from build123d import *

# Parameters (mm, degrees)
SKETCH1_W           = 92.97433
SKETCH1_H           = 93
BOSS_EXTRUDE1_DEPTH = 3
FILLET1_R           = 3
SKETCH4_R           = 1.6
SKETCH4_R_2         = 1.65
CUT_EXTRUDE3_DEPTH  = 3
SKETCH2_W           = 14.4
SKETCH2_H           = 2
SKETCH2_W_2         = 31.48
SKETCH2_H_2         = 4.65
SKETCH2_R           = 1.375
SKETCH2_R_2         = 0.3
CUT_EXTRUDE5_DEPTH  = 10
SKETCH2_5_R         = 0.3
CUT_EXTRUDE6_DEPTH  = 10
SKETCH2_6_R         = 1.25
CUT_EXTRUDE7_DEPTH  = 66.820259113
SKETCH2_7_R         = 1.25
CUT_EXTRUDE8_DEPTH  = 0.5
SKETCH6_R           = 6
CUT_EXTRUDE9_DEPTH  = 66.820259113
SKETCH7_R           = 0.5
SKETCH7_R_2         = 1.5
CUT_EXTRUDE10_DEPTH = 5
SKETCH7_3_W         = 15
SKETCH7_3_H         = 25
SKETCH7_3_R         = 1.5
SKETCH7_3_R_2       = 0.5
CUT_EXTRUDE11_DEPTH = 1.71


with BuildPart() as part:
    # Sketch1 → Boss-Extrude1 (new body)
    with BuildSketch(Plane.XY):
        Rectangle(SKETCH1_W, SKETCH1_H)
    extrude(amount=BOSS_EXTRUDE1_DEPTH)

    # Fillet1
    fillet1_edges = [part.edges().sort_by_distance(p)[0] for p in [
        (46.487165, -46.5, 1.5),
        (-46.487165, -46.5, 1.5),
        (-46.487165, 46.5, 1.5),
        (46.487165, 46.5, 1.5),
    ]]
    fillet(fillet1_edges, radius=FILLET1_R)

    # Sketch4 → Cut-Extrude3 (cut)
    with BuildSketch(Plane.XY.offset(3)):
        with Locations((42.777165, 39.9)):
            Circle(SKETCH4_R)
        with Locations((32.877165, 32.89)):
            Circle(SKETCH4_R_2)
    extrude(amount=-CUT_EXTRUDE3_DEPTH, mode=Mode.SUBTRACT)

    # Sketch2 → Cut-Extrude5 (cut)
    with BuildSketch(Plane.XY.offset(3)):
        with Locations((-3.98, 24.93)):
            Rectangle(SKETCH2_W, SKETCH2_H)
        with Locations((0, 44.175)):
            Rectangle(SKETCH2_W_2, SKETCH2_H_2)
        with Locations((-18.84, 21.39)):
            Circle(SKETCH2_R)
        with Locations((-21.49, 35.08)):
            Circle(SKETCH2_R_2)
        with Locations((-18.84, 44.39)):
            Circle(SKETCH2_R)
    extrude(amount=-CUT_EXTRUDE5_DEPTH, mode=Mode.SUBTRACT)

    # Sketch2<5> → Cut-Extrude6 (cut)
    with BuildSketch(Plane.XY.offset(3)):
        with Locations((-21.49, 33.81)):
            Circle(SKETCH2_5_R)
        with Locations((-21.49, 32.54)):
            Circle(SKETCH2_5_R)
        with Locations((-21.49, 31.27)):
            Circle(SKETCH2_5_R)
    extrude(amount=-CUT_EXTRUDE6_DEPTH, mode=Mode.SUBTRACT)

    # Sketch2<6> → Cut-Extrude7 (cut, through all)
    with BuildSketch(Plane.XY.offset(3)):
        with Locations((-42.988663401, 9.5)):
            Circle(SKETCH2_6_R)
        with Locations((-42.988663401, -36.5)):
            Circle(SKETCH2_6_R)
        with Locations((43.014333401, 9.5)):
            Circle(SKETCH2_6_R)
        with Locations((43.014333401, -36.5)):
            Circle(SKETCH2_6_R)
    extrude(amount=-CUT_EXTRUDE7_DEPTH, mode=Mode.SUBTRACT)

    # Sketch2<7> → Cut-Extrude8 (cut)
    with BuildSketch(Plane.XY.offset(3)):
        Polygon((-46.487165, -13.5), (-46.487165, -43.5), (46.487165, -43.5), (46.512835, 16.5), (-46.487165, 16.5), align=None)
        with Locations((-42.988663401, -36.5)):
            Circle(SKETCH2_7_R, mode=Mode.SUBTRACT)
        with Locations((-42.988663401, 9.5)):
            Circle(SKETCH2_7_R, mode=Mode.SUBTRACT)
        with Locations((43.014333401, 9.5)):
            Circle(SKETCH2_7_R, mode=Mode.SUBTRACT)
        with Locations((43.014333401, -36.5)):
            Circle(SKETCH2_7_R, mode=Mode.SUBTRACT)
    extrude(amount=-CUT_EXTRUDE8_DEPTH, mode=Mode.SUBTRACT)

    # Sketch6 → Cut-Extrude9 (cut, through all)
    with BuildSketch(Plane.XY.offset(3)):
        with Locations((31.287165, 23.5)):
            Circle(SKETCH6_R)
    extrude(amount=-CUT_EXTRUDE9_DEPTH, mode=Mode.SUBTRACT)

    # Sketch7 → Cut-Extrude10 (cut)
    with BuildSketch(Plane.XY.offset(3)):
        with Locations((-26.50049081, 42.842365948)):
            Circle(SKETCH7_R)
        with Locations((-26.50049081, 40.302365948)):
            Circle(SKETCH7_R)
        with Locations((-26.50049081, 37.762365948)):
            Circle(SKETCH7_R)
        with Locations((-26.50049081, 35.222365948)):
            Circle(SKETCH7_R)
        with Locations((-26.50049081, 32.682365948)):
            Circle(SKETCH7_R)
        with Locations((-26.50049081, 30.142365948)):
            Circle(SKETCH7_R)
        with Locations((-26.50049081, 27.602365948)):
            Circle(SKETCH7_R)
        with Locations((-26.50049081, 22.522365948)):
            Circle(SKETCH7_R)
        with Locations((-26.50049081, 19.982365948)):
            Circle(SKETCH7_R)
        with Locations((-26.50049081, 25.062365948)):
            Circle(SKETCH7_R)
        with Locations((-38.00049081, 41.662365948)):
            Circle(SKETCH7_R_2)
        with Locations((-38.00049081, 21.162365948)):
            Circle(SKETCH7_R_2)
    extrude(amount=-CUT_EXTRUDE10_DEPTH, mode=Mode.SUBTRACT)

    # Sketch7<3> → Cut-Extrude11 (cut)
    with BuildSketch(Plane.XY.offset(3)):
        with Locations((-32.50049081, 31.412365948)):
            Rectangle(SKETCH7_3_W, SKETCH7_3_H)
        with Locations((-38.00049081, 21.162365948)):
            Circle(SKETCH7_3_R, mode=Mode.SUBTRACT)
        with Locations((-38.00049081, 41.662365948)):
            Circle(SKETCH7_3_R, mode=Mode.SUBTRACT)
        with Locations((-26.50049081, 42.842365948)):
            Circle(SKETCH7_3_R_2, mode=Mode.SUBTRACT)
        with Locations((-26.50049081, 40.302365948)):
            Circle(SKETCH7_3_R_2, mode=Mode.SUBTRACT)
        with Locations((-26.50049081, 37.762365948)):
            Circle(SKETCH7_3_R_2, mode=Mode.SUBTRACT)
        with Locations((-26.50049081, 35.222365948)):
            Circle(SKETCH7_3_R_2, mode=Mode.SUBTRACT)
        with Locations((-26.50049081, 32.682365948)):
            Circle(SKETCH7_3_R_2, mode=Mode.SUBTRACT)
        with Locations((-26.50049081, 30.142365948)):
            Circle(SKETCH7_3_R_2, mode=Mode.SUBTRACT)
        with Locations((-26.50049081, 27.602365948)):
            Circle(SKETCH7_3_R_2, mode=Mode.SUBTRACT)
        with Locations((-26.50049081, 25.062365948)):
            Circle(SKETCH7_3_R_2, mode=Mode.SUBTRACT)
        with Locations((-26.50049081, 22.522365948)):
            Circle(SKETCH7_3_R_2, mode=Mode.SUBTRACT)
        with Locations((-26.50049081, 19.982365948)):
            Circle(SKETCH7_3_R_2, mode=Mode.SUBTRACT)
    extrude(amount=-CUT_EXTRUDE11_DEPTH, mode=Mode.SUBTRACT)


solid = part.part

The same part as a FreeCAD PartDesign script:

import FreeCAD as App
import Part
import Sketcher


def edges_at(feature, points):
    """Names of the edges that pass closest to the given points."""
    edges = feature.Shape.Edges
    near = lambda p: min(range(len(edges)), key=lambda i: edges[i].distToShape(Part.Vertex(*p))[0])
    return sorted({f"Edge{near(p) + 1}" for p in points})


def add_polygon(sketch, points):
    """Adds a closed chain of lines whose ends are joined by coincident constraints."""
    first, n = sketch.GeometryCount, len(points)
    for a, b in zip(points, points[1:] + points[:1]):
        sketch.addGeometry(Part.LineSegment(App.Vector(*a, 0), App.Vector(*b, 0)), False)
    for i in range(n):
        sketch.addConstraint(Sketcher.Constraint("Coincident", first + i, 2, first + (i + 1) % n, 1))

doc = App.newDocument("Part")
params = doc.addObject("Spreadsheet::Sheet", "Params")
for row, (alias, value) in enumerate([
    ("sketch1_height", "93 mm"),
    ("pad1_length", "3 mm"),
    ("fillet_radius", "3 mm"),
    ("sketch2_diameter", "3.2 mm"),
    ("sketch2_diameter2", "3.3 mm"),
    ("pocket1_length", "3 mm"),
    ("sketch3_diameter", "0.6 mm"),
    ("sketch3_diameter2", "2.75 mm"),
    ("sketch3_height", "2 mm"),
    ("sketch3_width", "14.4 mm"),
    ("sketch3_width2", "31.48 mm"),
    ("pocket2_length", "10 mm"),
    ("sketch4_diameter", "0.6 mm"),
    ("pocket3_length", "10 mm"),
    ("sketch5_diameter", "2.5 mm"),
    ("sketch6_diameter", "2.5 mm"),
    ("sketch6_width", "93 mm"),
    ("sketch6_height", "60 mm"),
    ("pocket5_length", "0.5 mm"),
    ("sketch7_diameter", "12 mm"),
    ("sketch8_diameter", "1 mm"),
    ("sketch8_diameter2", "3 mm"),
    ("pocket7_length", "5 mm"),
    ("sketch9_diameter", "3 mm"),
    ("sketch9_diameter2", "1 mm"),
    ("sketch9_width", "15 mm"),
    ("sketch9_height", "25 mm"),
    ("pocket8_length", "1.71 mm"),
], start=1):
    params.set(f"A{row}", alias)
    params.set(f"B{row}", "=" + value)
    params.setAlias(f"B{row}", alias)

body = doc.addObject("PartDesign::Body", "Body")

sketch1 = body.newObject("Sketcher::SketchObject", "Sketch")
sketch1.AttachmentSupport = (doc.getObject("XY_Plane"), [""])
sketch1.MapMode = "FlatFace"
add_polygon(sketch1, [(-46.487165, 46.5), (-46.487165, -46.5), (46.487165, -46.5), (46.487165, 46.5)])
sketch1.addConstraint([
    Sketcher.Constraint("Vertical", 0),
    Sketcher.Constraint("Horizontal", 1),
    Sketcher.Constraint("Vertical", 2),
    Sketcher.Constraint("Horizontal", 3),
    Sketcher.Constraint("Symmetric", 0, 2, 2, 2, -1, 1),
    Sketcher.Constraint("DistanceY", 0, 2, 0, 1, 93.0),
    Sketcher.Constraint("DistanceX", 1, 1, 1, 2, 92.97433),
])
sketch1.setExpression("Constraints[9]", "Params.sketch1_height")
pad1 = body.newObject("PartDesign::Pad", "Pad")
pad1.Profile = sketch1
pad1.setExpression("Length", "Params.pad1_length")
doc.recompute()

fillet = body.newObject("PartDesign::Fillet", "Fillet")
fillet.Base = (pad1, edges_at(pad1, [
    (46.487, -46.5, 1.5),
    (-46.487, -46.5, 1.5),
    (-46.487, 46.5, 1.5),
    (46.487, 46.5, 1.5),
]))
fillet.setExpression("Radius", "Params.fillet_radius")

sketch2 = body.newObject("Sketcher::SketchObject", "Sketch001")
sketch2.AttachmentSupport = (doc.getObject("XY_Plane"), [""])
sketch2.MapMode = "FlatFace"
sketch2.AttachmentOffset = App.Placement(App.Vector(0, 0, 3), App.Rotation())
sketch2.addGeometry([
    Part.Circle(App.Vector(42.777165, 39.9, 0), App.Vector(0, 0, 1), 1.6),
    Part.Circle(App.Vector(32.877165, 32.89, 0), App.Vector(0, 0, 1), 1.65),
], False)
sketch2.addConstraint([
    Sketcher.Constraint("Diameter", 0, 3.2),
    Sketcher.Constraint("Diameter", 1, 3.3),
    Sketcher.Constraint("DistanceY", -1, 1, 0, 3, 39.9),
    Sketcher.Constraint("DistanceX", 1, 3, 0, 3, 9.9),
    Sketcher.Constraint("DistanceY", -1, 1, 1, 3, 32.89),
    Sketcher.Constraint("DistanceX", -1, 1, 0, 3, 42.777165),
])
sketch2.setExpression("Constraints[0]", "Params.sketch2_diameter")
sketch2.setExpression("Constraints[1]", "Params.sketch2_diameter2")
pocket1 = body.newObject("PartDesign::Pocket", "Pocket")
pocket1.Profile = sketch2
pocket1.setExpression("Length", "Params.pocket1_length")

sketch3 = body.newObject("Sketcher::SketchObject", "Sketch002")
sketch3.AttachmentSupport = (doc.getObject("XY_Plane"), [""])
sketch3.MapMode = "FlatFace"
sketch3.AttachmentOffset = App.Placement(App.Vector(0, 0, 3), App.Rotation())
add_polygon(sketch3, [(-11.18, 25.93), (-11.18, 23.93), (3.22, 23.93), (3.22, 25.93)])
add_polygon(sketch3, [(-15.74, 46.5), (-15.74, 41.85), (15.74, 41.85), (15.74, 46.5)])
sketch3.addGeometry(Part.Circle(App.Vector(-18.84, 21.39, 0), App.Vector(0, 0, 1), 1.375), False)
sketch3.addGeometry(Part.Circle(App.Vector(-21.49, 35.08, 0), App.Vector(0, 0, 1), 0.3), False)
sketch3.addGeometry(Part.Circle(App.Vector(-18.84, 44.39, 0), App.Vector(0, 0, 1), 1.375), False)
sketch3.addConstraint([
    Sketcher.Constraint("Vertical", 0),
    Sketcher.Constraint("Horizontal", 1),
    Sketcher.Constraint("Vertical", 2),
    Sketcher.Constraint("Horizontal", 3),
    Sketcher.Constraint("Vertical", 4),
    Sketcher.Constraint("Horizontal", 5),
    Sketcher.Constraint("Vertical", 6),
    Sketcher.Constraint("Horizontal", 7),
    Sketcher.Constraint("Equal", 8, 10),
    Sketcher.Constraint("Vertical", 8, 3, 10, 3),
    Sketcher.Constraint("Diameter", 9, 0.6),
    Sketcher.Constraint("Diameter", 8, 2.75),
    Sketcher.Constraint("DistanceY", 0, 2, 0, 1, 2.0),
    Sketcher.Constraint("DistanceX", 1, 1, 1, 2, 14.4),
    Sketcher.Constraint("DistanceY", 8, 3, 10, 3, 23.0),
    Sketcher.Constraint("DistanceX", 5, 1, 5, 2, 31.48),
    Sketcher.Constraint("DistanceY", 4, 2, 4, 1, 4.65),
    Sketcher.Constraint("DistanceY", -1, 1, 6, 2, 46.5),
    Sketcher.Constraint("DistanceX", 10, 3, 4, 2, 3.1),
    Sketcher.Constraint("DistanceX", 8, 3, -1, 1, 18.84),
    Sketcher.Constraint("DistanceY", -1, 1, 8, 3, 21.39),
    Sketcher.Constraint("DistanceX", 9, 3, -1, 1, 21.49),
    Sketcher.Constraint("DistanceY", -1, 1, 9, 3, 35.08),
    Sketcher.Constraint("DistanceX", 0, 2, -1, 1, 11.18),
    Sketcher.Constraint("DistanceY", -1, 1, 0, 2, 23.93),
])
sketch3.setExpression("Constraints[18]", "Params.sketch3_diameter")
sketch3.setExpression("Constraints[19]", "Params.sketch3_diameter2")
sketch3.setExpression("Constraints[20]", "Params.sketch3_height")
sketch3.setExpression("Constraints[21]", "Params.sketch3_width")
sketch3.setExpression("Constraints[23]", "Params.sketch3_width2")
pocket2 = body.newObject("PartDesign::Pocket", "Pocket001")
pocket2.Profile = sketch3
pocket2.setExpression("Length", "Params.pocket2_length")

sketch4 = body.newObject("Sketcher::SketchObject", "Sketch003")
sketch4.AttachmentSupport = (doc.getObject("XY_Plane"), [""])
sketch4.MapMode = "FlatFace"
sketch4.AttachmentOffset = App.Placement(App.Vector(0, 0, 3), App.Rotation())
sketch4.addGeometry([
    Part.Circle(App.Vector(-21.49, 33.81, 0), App.Vector(0, 0, 1), 0.3),
    Part.Circle(App.Vector(-21.49, 32.54, 0), App.Vector(0, 0, 1), 0.3),
    Part.Circle(App.Vector(-21.49, 31.27, 0), App.Vector(0, 0, 1), 0.3),
], False)
sketch4.addConstraint([
    Sketcher.Constraint("Equal", 0, 1),
    Sketcher.Constraint("Equal", 1, 2),
    Sketcher.Constraint("Vertical", 0, 3, 1, 3),
    Sketcher.Constraint("Vertical", 1, 3, 2, 3),
    Sketcher.Constraint("Diameter", 0, 0.6),
    Sketcher.Constraint("DistanceX", 0, 3, -1, 1, 21.49),
    Sketcher.Constraint("DistanceY", -1, 1, 0, 3, 33.81),
    Sketcher.Constraint("DistanceY", -1, 1, 1, 3, 32.54),
    Sketcher.Constraint("DistanceY", -1, 1, 2, 3, 31.27),
])
sketch4.setExpression("Constraints[4]", "Params.sketch4_diameter")
pocket3 = body.newObject("PartDesign::Pocket", "Pocket002")
pocket3.Profile = sketch4
pocket3.setExpression("Length", "Params.pocket3_length")

sketch5 = body.newObject("Sketcher::SketchObject", "Sketch004")
sketch5.AttachmentSupport = (doc.getObject("XY_Plane"), [""])
sketch5.MapMode = "FlatFace"
sketch5.AttachmentOffset = App.Placement(App.Vector(0, 0, 3), App.Rotation())
sketch5.addGeometry([
    Part.Circle(App.Vector(-42.988663, 9.5, 0), App.Vector(0, 0, 1), 1.25),
    Part.Circle(App.Vector(-42.988663, -36.5, 0), App.Vector(0, 0, 1), 1.25),
    Part.Circle(App.Vector(43.014333, 9.5, 0), App.Vector(0, 0, 1), 1.25),
    Part.Circle(App.Vector(43.014333, -36.5, 0), App.Vector(0, 0, 1), 1.25),
], False)
sketch5.addConstraint([
    Sketcher.Constraint("Equal", 0, 1),
    Sketcher.Constraint("Equal", 1, 2),
    Sketcher.Constraint("Equal", 2, 3),
    Sketcher.Constraint("Horizontal", 0, 3, 2, 3),
    Sketcher.Constraint("Horizontal", 1, 3, 3, 3),
    Sketcher.Constraint("Vertical", 0, 3, 1, 3),
    Sketcher.Constraint("Vertical", 2, 3, 3, 3),
    Sketcher.Constraint("Diameter", 0, 2.5),
    Sketcher.Constraint("DistanceY", 1, 3, 0, 3, 46.0),
    Sketcher.Constraint("DistanceY", -1, 1, 0, 3, 9.5),
    Sketcher.Constraint("DistanceX", 0, 3, -1, 1, 42.988663),
    Sketcher.Constraint("DistanceX", -1, 1, 2, 3, 43.014333),
])
sketch5.setExpression("Constraints[7]", "Params.sketch5_diameter")
pocket4 = body.newObject("PartDesign::Pocket", "Pocket003")
pocket4.Profile = sketch5
pocket4.Type = "ThroughAll"

sketch6 = body.newObject("Sketcher::SketchObject", "Sketch005")
sketch6.AttachmentSupport = (doc.getObject("XY_Plane"), [""])
sketch6.MapMode = "FlatFace"
sketch6.AttachmentOffset = App.Placement(App.Vector(0, 0, 3), App.Rotation())
add_polygon(sketch6, [(-46.487165, -43.5), (46.487165, -43.5), (46.512835, 16.5), (-46.487165, 16.5)])
sketch6.addGeometry(Part.Circle(App.Vector(-42.988663, -36.5, 0), App.Vector(0, 0, 1), 1.25), False)
sketch6.addGeometry(Part.Circle(App.Vector(43.014333, -36.5, 0), App.Vector(0, 0, 1), 1.25), False)
sketch6.addGeometry(Part.Circle(App.Vector(-42.988663, 9.5, 0), App.Vector(0, 0, 1), 1.25), False)
sketch6.addGeometry(Part.Circle(App.Vector(43.014333, 9.5, 0), App.Vector(0, 0, 1), 1.25), False)
sketch6.addConstraint([
    Sketcher.Constraint("Horizontal", 0),
    Sketcher.Constraint("Horizontal", 2),
    Sketcher.Constraint("Vertical", 3),
    Sketcher.Constraint("Equal", 4, 5),
    Sketcher.Constraint("Equal", 5, 6),
    Sketcher.Constraint("Equal", 6, 7),
    Sketcher.Constraint("Horizontal", 4, 3, 5, 3),
    Sketcher.Constraint("Horizontal", 6, 3, 7, 3),
    Sketcher.Constraint("Vertical", 4, 3, 6, 3),
    Sketcher.Constraint("Vertical", 5, 3, 7, 3),
    Sketcher.Constraint("Diameter", 4, 2.5),
    Sketcher.Constraint("DistanceX", 2, 2, 2, 1, 93.0),
    Sketcher.Constraint("DistanceY", 3, 2, 3, 1, 60.0),
    Sketcher.Constraint("DistanceY", 4, 3, 6, 3, 46.0),
    Sketcher.Constraint("DistanceY", 0, 2, 5, 3, 7.0),
    Sketcher.Constraint("DistanceY", 4, 3, -1, 1, 36.5),
    Sketcher.Constraint("DistanceX", 0, 1, 0, 2, 92.97433),
    Sketcher.Constraint("DistanceX", 7, 3, 1, 2, 3.498502),
    Sketcher.Constraint("DistanceX", 6, 3, 1, 2, 89.501498),
    Sketcher.Constraint("DistanceX", 4, 3, -1, 1, 42.988663),
])
sketch6.setExpression("Constraints[14]", "Params.sketch6_diameter")
sketch6.setExpression("Constraints[15]", "Params.sketch6_width")
sketch6.setExpression("Constraints[16]", "Params.sketch6_height")
pocket5 = body.newObject("PartDesign::Pocket", "Pocket004")
pocket5.Profile = sketch6
pocket5.setExpression("Length", "Params.pocket5_length")

sketch7 = body.newObject("Sketcher::SketchObject", "Sketch006")
sketch7.AttachmentSupport = (doc.getObject("XY_Plane"), [""])
sketch7.MapMode = "FlatFace"
sketch7.AttachmentOffset = App.Placement(App.Vector(0, 0, 3), App.Rotation())
sketch7.addGeometry(Part.Circle(App.Vector(31.287165, 23.5, 0), App.Vector(0, 0, 1), 6), False)
sketch7.addConstraint([
    Sketcher.Constraint("Diameter", 0, 12.0),
    Sketcher.Constraint("DistanceY", -1, 1, 0, 3, 23.5),
    Sketcher.Constraint("DistanceX", -1, 1, 0, 3, 31.287165),
])
sketch7.setExpression("Constraints[0]", "Params.sketch7_diameter")
pocket6 = body.newObject("PartDesign::Pocket", "Pocket005")
pocket6.Profile = sketch7
pocket6.Type = "ThroughAll"

sketch8 = body.newObject("Sketcher::SketchObject", "Sketch007")
sketch8.AttachmentSupport = (doc.getObject("XY_Plane"), [""])
sketch8.MapMode = "FlatFace"
sketch8.AttachmentOffset = App.Placement(App.Vector(0, 0, 3), App.Rotation())
sketch8.addGeometry([
    Part.Circle(App.Vector(-26.500491, 42.842366, 0), App.Vector(0, 0, 1), 0.5),
    Part.Circle(App.Vector(-26.500491, 40.302366, 0), App.Vector(0, 0, 1), 0.5),
    Part.Circle(App.Vector(-26.500491, 37.762366, 0), App.Vector(0, 0, 1), 0.5),
    Part.Circle(App.Vector(-26.500491, 35.222366, 0), App.Vector(0, 0, 1), 0.5),
    Part.Circle(App.Vector(-26.500491, 32.682366, 0), App.Vector(0, 0, 1), 0.5),
    Part.Circle(App.Vector(-26.500491, 30.142366, 0), App.Vector(0, 0, 1), 0.5),
    Part.Circle(App.Vector(-26.500491, 27.602366, 0), App.Vector(0, 0, 1), 0.5),
    Part.Circle(App.Vector(-26.500491, 22.522366, 0), App.Vector(0, 0, 1), 0.5),
    Part.Circle(App.Vector(-26.500491, 19.982366, 0), App.Vector(0, 0, 1), 0.5),
    Part.Circle(App.Vector(-26.500491, 25.062366, 0), App.Vector(0, 0, 1), 0.5),
    Part.Circle(App.Vector(-38.000491, 41.662366, 0), App.Vector(0, 0, 1), 1.5),
    Part.Circle(App.Vector(-38.000491, 21.162366, 0), App.Vector(0, 0, 1), 1.5),
], False)
sketch8.addConstraint([
    Sketcher.Constraint("Equal", 0, 1),
    Sketcher.Constraint("Equal", 1, 2),
    Sketcher.Constraint("Equal", 2, 3),
    Sketcher.Constraint("Equal", 3, 4),
    Sketcher.Constraint("Equal", 4, 5),
    Sketcher.Constraint("Equal", 5, 6),
    Sketcher.Constraint("Equal", 6, 7),
    Sketcher.Constraint("Equal", 7, 8),
    Sketcher.Constraint("Equal", 8, 9),
    Sketcher.Constraint("Equal", 10, 11),
    Sketcher.Constraint("Vertical", 0, 3, 1, 3),
    Sketcher.Constraint("Vertical", 1, 3, 2, 3),
    Sketcher.Constraint("Vertical", 2, 3, 3, 3),
    Sketcher.Constraint("Vertical", 3, 3, 4, 3),
    Sketcher.Constraint("Vertical", 4, 3, 5, 3),
    Sketcher.Constraint("Vertical", 5, 3, 6, 3),
    Sketcher.Constraint("Vertical", 6, 3, 7, 3),
    Sketcher.Constraint("Vertical", 7, 3, 8, 3),
    Sketcher.Constraint("Vertical", 8, 3, 9, 3),
    Sketcher.Constraint("Vertical", 10, 3, 11, 3),
    Sketcher.Constraint("Diameter", 0, 1.0),
    Sketcher.Constraint("Diameter", 10, 3.0),
    Sketcher.Constraint("DistanceY", 5, 3, 0, 3, 12.7),
    Sketcher.Constraint("DistanceY", 6, 3, 1, 3, 12.7),
    Sketcher.Constraint("DistanceY", 7, 3, 3, 3, 12.7),
    Sketcher.Constraint("DistanceY", 8, 3, 4, 3, 12.7),
    Sketcher.Constraint("DistanceX", 10, 3, 0, 3, 11.5),
    Sketcher.Constraint("DistanceY", 2, 3, 10, 3, 3.9),
    Sketcher.Constraint("DistanceY", 11, 3, 9, 3, 3.9),
    Sketcher.Constraint("DistanceY", 1, 3, 0, 3, 2.54),
    Sketcher.Constraint("DistanceY", 2, 3, 1, 3, 2.54),
    Sketcher.Constraint("DistanceY", 3, 3, 2, 3, 2.54),
    Sketcher.Constraint("DistanceY", 4, 3, 3, 3, 2.54),
    Sketcher.Constraint("DistanceY", 9, 3, 6, 3, 2.54),
    Sketcher.Constraint("DistanceX", 0, 3, -1, 1, 26.500491),
    Sketcher.Constraint("DistanceY", -1, 1, 0, 3, 42.842366),
])
sketch8.setExpression("Constraints[20]", "Params.sketch8_diameter")
sketch8.setExpression("Constraints[21]", "Params.sketch8_diameter2")
pocket7 = body.newObject("PartDesign::Pocket", "Pocket006")
pocket7.Profile = sketch8
pocket7.setExpression("Length", "Params.pocket7_length")

sketch9 = body.newObject("Sketcher::SketchObject", "Sketch008")
sketch9.AttachmentSupport = (doc.getObject("XY_Plane"), [""])
sketch9.MapMode = "FlatFace"
sketch9.AttachmentOffset = App.Placement(App.Vector(0, 0, 3), App.Rotation())
add_polygon(sketch9, [(-40.000491, 43.912366), (-40.000491, 18.912366), (-25.000491, 18.912366), (-25.000491, 43.912366)])
sketch9.addGeometry(Part.Circle(App.Vector(-38.000491, 21.162366, 0), App.Vector(0, 0, 1), 1.5), False)
sketch9.addGeometry(Part.Circle(App.Vector(-26.500491, 19.982366, 0), App.Vector(0, 0, 1), 0.5), False)
sketch9.addGeometry(Part.Circle(App.Vector(-26.500491, 22.522366, 0), App.Vector(0, 0, 1), 0.5), False)
sketch9.addGeometry(Part.Circle(App.Vector(-26.500491, 25.062366, 0), App.Vector(0, 0, 1), 0.5), False)
sketch9.addGeometry(Part.Circle(App.Vector(-26.500491, 27.602366, 0), App.Vector(0, 0, 1), 0.5), False)
sketch9.addGeometry(Part.Circle(App.Vector(-26.500491, 30.142366, 0), App.Vector(0, 0, 1), 0.5), False)
sketch9.addGeometry(Part.Circle(App.Vector(-38.000491, 41.662366, 0), App.Vector(0, 0, 1), 1.5), False)
sketch9.addGeometry(Part.Circle(App.Vector(-26.500491, 32.682366, 0), App.Vector(0, 0, 1), 0.5), False)
sketch9.addGeometry(Part.Circle(App.Vector(-26.500491, 35.222366, 0), App.Vector(0, 0, 1), 0.5), False)
sketch9.addGeometry(Part.Circle(App.Vector(-26.500491, 37.762366, 0), App.Vector(0, 0, 1), 0.5), False)
sketch9.addGeometry(Part.Circle(App.Vector(-26.500491, 40.302366, 0), App.Vector(0, 0, 1), 0.5), False)
sketch9.addGeometry(Part.Circle(App.Vector(-26.500491, 42.842366, 0), App.Vector(0, 0, 1), 0.5), False)
sketch9.addConstraint([
    Sketcher.Constraint("Vertical", 0),
    Sketcher.Constraint("Horizontal", 1),
    Sketcher.Constraint("Vertical", 2),
    Sketcher.Constraint("Horizontal", 3),
    Sketcher.Constraint("Equal", 5, 6),
    Sketcher.Constraint("Equal", 6, 7),
    Sketcher.Constraint("Equal", 7, 8),
    Sketcher.Constraint("Equal", 8, 9),
    Sketcher.Constraint("Equal", 4, 10),
    Sketcher.Constraint("Equal", 9, 11),
    Sketcher.Constraint("Equal", 11, 12),
    Sketcher.Constraint("Equal", 12, 13),
    Sketcher.Constraint("Equal", 13, 14),
    Sketcher.Constraint("Equal", 14, 15),
    Sketcher.Constraint("Vertical", 5, 3, 6, 3),
    Sketcher.Constraint("Vertical", 6, 3, 7, 3),
    Sketcher.Constraint("Vertical", 7, 3, 8, 3),
    Sketcher.Constraint("Vertical", 8, 3, 9, 3),
    Sketcher.Constraint("Vertical", 4, 3, 10, 3),
    Sketcher.Constraint("Vertical", 9, 3, 11, 3),
    Sketcher.Constraint("Vertical", 11, 3, 12, 3),
    Sketcher.Constraint("Vertical", 12, 3, 13, 3),
    Sketcher.Constraint("Vertical", 13, 3, 14, 3),
    Sketcher.Constraint("Vertical", 14, 3, 15, 3),
    Sketcher.Constraint("Diameter", 4, 3.0),
    Sketcher.Constraint("Diameter", 5, 1.0),
    Sketcher.Constraint("DistanceX", 1, 1, 1, 2, 15.0),
    Sketcher.Constraint("DistanceY", 0, 2, 0, 1, 25.0),
    Sketcher.Constraint("DistanceX", 0, 2, 4, 3, 2.0),
    Sketcher.Constraint("DistanceX", 4, 3, 5, 3, 11.5),
    Sketcher.Constraint("DistanceY", 4, 3, 7, 3, 3.9),
    Sketcher.Constraint("DistanceY", 7, 3, 10, 3, 16.6),
    Sketcher.Constraint("DistanceY", 5, 3, 11, 3, 12.7),
    Sketcher.Constraint("DistanceY", 6, 3, 12, 3, 12.7),
    Sketcher.Constraint("DistanceY", 13, 3, 10, 3, 3.9),
    Sketcher.Constraint("DistanceY", 5, 3, 4, 3, 1.18),
    Sketcher.Constraint("DistanceY", 5, 3, 6, 3, 2.54),
    Sketcher.Constraint("DistanceY", 7, 3, 8, 3, 2.54),
    Sketcher.Constraint("DistanceY", 8, 3, 9, 3, 2.54),
    Sketcher.Constraint("DistanceY", 13, 3, 14, 3, 2.54),
    Sketcher.Constraint("DistanceY", 14, 3, 15, 3, 2.54),
    Sketcher.Constraint("DistanceY", 0, 2, 4, 3, 2.25),
    Sketcher.Constraint("DistanceX", 4, 3, -1, 1, 38.000491),
    Sketcher.Constraint("DistanceY", -1, 1, 4, 3, 21.162366),
])
sketch9.setExpression("Constraints[28]", "Params.sketch9_diameter")
sketch9.setExpression("Constraints[29]", "Params.sketch9_diameter2")
sketch9.setExpression("Constraints[30]", "Params.sketch9_width")
sketch9.setExpression("Constraints[31]", "Params.sketch9_height")
pocket8 = body.newObject("PartDesign::Pocket", "Pocket007")
pocket8.Profile = sketch9
pocket8.setExpression("Length", "Params.pocket8_length")

doc.recompute()
